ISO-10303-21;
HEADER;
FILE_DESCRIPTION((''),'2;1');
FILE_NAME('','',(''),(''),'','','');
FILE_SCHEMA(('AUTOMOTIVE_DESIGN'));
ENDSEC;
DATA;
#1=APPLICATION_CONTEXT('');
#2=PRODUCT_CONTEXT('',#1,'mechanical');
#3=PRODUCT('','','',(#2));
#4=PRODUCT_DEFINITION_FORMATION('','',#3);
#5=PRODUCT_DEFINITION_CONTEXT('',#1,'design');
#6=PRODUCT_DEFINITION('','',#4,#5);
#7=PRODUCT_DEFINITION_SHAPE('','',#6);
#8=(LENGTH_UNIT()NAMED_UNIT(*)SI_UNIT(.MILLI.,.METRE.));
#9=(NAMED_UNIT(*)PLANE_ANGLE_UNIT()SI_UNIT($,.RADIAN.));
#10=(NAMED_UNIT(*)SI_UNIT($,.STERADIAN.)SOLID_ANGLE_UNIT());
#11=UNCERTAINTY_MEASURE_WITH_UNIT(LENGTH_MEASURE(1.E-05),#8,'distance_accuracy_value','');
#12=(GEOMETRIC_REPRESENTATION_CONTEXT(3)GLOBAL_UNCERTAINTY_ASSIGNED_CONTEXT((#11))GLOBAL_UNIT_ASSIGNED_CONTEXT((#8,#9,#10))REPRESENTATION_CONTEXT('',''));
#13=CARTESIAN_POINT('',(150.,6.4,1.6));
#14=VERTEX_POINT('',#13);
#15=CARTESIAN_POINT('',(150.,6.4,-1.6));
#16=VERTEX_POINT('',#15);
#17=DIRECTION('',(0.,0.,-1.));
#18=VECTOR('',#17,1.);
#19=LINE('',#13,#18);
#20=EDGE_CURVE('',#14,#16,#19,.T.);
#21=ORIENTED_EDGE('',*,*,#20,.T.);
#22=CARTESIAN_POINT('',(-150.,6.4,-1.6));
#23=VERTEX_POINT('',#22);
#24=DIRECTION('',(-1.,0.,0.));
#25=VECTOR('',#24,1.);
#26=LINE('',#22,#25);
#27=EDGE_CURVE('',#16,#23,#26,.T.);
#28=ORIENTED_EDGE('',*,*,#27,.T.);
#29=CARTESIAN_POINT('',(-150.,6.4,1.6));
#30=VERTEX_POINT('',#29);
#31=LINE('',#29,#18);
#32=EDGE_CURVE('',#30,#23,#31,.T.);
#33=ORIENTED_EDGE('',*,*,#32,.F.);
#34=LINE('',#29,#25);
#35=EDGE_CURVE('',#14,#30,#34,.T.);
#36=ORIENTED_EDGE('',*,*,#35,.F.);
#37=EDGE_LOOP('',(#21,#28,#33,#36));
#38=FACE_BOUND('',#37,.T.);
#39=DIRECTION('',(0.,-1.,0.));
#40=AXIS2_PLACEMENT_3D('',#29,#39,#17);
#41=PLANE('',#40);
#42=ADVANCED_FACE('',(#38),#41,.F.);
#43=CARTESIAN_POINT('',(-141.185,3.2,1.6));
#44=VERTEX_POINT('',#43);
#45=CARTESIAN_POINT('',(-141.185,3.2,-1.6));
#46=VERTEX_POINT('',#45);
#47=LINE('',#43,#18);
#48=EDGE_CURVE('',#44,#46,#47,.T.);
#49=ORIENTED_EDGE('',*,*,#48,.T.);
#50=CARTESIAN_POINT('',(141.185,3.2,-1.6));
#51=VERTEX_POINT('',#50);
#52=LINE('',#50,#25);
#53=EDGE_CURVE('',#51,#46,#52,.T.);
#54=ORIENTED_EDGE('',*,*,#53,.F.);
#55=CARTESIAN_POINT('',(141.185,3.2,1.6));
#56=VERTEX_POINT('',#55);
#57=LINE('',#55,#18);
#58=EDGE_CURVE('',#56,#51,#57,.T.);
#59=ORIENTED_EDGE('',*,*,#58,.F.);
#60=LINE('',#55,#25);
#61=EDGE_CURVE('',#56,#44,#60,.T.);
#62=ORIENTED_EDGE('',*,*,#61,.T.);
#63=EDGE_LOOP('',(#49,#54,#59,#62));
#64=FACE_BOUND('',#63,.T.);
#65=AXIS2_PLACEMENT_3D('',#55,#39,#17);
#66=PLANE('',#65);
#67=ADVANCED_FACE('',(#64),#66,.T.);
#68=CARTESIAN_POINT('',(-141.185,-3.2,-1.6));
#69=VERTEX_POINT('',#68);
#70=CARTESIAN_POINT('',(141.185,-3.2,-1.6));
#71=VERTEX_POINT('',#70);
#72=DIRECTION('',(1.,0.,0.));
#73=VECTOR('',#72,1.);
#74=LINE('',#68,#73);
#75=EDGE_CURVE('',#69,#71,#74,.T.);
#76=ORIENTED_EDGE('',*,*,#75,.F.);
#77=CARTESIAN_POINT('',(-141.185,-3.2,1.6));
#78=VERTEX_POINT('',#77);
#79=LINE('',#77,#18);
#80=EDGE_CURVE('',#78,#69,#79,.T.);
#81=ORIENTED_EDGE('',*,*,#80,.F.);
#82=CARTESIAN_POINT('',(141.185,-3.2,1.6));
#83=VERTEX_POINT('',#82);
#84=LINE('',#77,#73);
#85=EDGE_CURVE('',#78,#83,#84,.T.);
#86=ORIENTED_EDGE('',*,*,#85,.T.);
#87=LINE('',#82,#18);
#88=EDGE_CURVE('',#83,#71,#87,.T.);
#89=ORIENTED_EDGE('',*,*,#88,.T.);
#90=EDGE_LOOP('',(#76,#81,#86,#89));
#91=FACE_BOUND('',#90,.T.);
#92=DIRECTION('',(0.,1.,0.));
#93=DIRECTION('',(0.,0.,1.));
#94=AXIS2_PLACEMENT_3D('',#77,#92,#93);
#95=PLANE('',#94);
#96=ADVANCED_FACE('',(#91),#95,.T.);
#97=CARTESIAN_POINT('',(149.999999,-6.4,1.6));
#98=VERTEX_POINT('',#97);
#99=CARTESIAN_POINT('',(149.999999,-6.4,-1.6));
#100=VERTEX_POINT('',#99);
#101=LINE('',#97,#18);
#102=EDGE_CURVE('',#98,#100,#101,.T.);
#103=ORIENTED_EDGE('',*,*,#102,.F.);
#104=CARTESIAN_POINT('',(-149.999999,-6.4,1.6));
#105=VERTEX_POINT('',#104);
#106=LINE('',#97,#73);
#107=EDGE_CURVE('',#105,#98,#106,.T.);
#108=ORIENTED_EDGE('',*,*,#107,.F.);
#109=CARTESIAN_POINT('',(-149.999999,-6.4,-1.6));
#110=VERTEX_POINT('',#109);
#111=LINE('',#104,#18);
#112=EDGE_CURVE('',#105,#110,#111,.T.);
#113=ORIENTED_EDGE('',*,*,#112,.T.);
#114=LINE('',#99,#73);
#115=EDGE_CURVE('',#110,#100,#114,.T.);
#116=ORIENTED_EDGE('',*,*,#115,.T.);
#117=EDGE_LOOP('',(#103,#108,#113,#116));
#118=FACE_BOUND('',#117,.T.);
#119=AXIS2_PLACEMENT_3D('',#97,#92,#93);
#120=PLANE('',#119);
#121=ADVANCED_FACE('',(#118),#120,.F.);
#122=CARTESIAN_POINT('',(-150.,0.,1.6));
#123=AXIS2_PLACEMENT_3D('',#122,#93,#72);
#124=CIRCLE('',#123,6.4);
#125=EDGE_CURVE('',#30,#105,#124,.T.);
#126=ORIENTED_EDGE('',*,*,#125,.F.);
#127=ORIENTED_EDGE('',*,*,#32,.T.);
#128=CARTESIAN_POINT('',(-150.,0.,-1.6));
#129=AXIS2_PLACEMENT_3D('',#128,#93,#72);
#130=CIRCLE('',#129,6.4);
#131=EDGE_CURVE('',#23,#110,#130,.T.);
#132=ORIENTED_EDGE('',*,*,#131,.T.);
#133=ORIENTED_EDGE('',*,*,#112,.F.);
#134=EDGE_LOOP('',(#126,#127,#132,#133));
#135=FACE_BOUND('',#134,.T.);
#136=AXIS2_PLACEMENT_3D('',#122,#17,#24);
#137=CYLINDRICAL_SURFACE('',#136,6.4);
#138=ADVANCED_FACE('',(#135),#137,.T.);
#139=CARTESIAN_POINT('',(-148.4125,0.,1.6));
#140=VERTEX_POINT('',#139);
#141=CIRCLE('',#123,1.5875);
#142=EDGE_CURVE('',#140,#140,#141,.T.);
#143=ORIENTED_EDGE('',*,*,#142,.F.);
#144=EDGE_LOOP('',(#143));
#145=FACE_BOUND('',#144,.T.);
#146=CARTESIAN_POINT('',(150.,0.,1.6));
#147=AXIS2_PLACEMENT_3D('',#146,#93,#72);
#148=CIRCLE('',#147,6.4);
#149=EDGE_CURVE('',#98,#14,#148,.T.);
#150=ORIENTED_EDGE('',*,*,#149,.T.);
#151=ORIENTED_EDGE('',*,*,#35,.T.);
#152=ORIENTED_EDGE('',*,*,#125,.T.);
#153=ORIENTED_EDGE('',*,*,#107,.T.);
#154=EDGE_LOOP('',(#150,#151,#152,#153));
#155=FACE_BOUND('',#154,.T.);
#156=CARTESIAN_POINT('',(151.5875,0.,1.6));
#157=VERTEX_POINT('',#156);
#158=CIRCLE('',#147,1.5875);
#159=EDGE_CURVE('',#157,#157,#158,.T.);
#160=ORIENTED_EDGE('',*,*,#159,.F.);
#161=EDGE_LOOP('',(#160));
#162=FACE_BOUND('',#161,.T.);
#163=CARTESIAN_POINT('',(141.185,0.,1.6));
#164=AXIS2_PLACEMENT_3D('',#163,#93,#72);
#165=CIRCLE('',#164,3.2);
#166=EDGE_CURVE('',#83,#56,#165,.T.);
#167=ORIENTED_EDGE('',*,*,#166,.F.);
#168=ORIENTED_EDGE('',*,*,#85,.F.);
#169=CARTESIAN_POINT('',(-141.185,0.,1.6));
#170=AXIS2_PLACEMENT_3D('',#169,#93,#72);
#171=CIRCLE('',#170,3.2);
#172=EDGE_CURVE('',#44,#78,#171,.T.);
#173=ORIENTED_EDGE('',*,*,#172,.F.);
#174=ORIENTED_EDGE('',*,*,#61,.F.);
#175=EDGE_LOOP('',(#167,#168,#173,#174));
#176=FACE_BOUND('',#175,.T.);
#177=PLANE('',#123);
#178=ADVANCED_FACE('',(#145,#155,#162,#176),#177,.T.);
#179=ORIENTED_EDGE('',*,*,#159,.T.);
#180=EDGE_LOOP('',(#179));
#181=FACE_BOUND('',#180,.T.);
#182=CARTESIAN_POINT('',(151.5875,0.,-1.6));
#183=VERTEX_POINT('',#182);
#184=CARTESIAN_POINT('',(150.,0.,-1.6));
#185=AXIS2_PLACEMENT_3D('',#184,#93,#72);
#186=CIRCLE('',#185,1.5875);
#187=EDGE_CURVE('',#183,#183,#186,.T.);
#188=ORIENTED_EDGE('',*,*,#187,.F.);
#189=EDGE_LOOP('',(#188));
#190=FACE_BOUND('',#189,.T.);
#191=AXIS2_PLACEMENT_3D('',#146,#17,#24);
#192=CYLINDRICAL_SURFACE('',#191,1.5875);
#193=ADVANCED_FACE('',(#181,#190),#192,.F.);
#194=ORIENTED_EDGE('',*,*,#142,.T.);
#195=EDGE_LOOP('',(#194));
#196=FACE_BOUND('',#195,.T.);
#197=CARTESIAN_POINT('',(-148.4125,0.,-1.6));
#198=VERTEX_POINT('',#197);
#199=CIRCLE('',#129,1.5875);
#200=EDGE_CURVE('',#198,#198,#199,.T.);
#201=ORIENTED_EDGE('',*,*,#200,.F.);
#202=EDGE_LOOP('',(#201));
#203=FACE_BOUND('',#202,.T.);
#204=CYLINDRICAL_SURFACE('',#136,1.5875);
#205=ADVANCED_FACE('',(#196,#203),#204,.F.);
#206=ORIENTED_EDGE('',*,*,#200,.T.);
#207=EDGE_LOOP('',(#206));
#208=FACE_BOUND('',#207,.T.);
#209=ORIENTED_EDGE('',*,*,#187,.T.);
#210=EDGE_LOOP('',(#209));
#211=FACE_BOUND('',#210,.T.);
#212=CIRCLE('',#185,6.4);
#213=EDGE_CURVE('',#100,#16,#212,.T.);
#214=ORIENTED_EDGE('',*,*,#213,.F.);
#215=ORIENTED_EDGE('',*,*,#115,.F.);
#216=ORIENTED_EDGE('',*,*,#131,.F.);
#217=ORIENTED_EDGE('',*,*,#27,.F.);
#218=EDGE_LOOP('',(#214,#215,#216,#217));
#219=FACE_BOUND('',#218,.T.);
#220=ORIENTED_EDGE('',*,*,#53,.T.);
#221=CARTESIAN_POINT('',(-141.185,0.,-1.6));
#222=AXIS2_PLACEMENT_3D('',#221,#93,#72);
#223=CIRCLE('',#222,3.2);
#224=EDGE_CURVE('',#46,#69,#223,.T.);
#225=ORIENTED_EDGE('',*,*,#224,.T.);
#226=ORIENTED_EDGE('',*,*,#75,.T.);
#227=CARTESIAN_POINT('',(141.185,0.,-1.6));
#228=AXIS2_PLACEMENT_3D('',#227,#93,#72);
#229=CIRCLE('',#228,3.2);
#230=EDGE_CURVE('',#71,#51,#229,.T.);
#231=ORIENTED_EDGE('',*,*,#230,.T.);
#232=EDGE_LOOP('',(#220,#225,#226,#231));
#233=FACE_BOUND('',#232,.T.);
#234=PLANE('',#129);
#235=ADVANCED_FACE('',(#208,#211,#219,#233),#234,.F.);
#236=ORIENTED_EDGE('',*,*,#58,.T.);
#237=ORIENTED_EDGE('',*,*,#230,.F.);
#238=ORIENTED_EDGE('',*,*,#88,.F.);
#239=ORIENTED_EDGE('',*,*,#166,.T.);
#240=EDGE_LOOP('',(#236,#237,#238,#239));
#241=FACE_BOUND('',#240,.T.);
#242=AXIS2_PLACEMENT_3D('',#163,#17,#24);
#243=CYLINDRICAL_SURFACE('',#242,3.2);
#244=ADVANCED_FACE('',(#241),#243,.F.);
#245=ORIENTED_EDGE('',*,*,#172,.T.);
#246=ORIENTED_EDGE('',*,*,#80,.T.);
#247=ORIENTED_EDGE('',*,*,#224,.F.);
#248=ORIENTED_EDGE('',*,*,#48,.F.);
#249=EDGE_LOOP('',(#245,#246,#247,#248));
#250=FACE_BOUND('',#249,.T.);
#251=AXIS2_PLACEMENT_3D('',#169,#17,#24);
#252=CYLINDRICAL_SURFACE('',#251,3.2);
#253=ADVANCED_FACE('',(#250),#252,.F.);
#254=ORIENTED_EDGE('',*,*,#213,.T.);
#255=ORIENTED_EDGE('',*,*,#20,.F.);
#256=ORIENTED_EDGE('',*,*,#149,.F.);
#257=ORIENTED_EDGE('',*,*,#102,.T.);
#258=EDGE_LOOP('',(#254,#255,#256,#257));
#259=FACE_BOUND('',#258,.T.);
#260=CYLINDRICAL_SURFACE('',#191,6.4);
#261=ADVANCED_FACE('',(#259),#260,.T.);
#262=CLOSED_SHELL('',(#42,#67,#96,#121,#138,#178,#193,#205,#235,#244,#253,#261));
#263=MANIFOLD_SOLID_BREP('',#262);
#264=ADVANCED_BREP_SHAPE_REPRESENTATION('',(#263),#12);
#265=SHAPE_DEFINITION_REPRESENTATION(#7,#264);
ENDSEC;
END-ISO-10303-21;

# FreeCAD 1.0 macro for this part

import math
import FreeCAD as App
import Part
import Sketcher

V = App.Vector

doc = App.newDocument("Part")
params = doc.addObject("Spreadsheet::Sheet", "Params")
for row, (alias, value) in enumerate([
    ("sketch1_radius", "6.4 mm"),
    ("sketch1_radius2", "3.2 mm"),
    ("sketch1_width", "299.999999 mm"),
    ("sketch1_width2", "282.37 mm"),
    ("pad1_length", "3.2 mm"),
], start=1):
    params.set(f"A{row}", alias)
    params.set(f"B{row}", "=" + value)
    params.setAlias(f"B{row}", alias)

body = doc.addObject("PartDesign::Body", "Body")

sketch1 = body.newObject("Sketcher::SketchObject", "Sketch")
sketch1.AttachmentSupport = (doc.getObject("XY_Plane"), [""])
sketch1.MapMode = "FlatFace"
sketch1.addGeometry(Part.LineSegment(V(150, 6.4, 0), V(-150, 6.4, 0)), False)
sketch1.addGeometry(Part.ArcOfCircle(Part.Circle(V(-150, 0, 0), V(0, 0, 1), 6.4), math.radians(90), math.radians(270)), False)
sketch1.addGeometry(Part.LineSegment(V(-150, -6.4, 0), V(150, -6.4, 0)), False)
sketch1.addGeometry(Part.ArcOfCircle(Part.Circle(V(150, 0, 0), V(0, 0, 1), 6.4), math.radians(-90), math.radians(90)), False)
sketch1.addGeometry(Part.Circle(V(150, 0, 0), V(0, 0, 1), 1.6), False)
sketch1.addGeometry(Part.ArcOfCircle(Part.Circle(V(141.2, 0, 0), V(0, 0, 1), 3.2), math.radians(-90), math.radians(90)), False)
sketch1.addGeometry(Part.LineSegment(V(141.2, -3.2, 0), V(-141.2, -3.2, 0)), False)
sketch1.addGeometry(Part.ArcOfCircle(Part.Circle(V(-141.2, 0, 0), V(0, 0, 1), 3.2), math.radians(90), math.radians(270)), False)
sketch1.addGeometry(Part.LineSegment(V(-141.2, 3.2, 0), V(141.2, 3.2, 0)), False)
sketch1.addGeometry(Part.Circle(V(-150, 0, 0), V(0, 0, 1), 1.6), False)
sketch1.addConstraint(Sketcher.Constraint("Tangent", 0, 2, 1, 1))
sketch1.addConstraint(Sketcher.Constraint("Tangent", 1, 2, 2, 1))
sketch1.addConstraint(Sketcher.Constraint("Tangent", 2, 2, 3, 1))
sketch1.addConstraint(Sketcher.Constraint("Tangent", 3, 2, 0, 1))
sketch1.addConstraint(Sketcher.Constraint("Tangent", 5, 1, 6, 1))
sketch1.addConstraint(Sketcher.Constraint("Tangent", 6, 2, 7, 2))
sketch1.addConstraint(Sketcher.Constraint("Tangent", 7, 1, 8, 1))
sketch1.addConstraint(Sketcher.Constraint("Tangent", 8, 2, 5, 2))
sketch1.addConstraint(Sketcher.Constraint("Horizontal", 0))
sketch1.addConstraint(Sketcher.Constraint("Horizontal", 2))
sketch1.addConstraint(Sketcher.Constraint("Horizontal", 6))
sketch1.addConstraint(Sketcher.Constraint("Horizontal", 8))
sketch1.addConstraint(Sketcher.Constraint("Coincident", 4, 3, 3, 3))
sketch1.addConstraint(Sketcher.Constraint("Coincident", 9, 3, 1, 3))
sketch1.addConstraint(Sketcher.Constraint("Equal", 4, 9))
sketch1.addConstraint(Sketcher.Constraint("Symmetric", 1, 3, 3, 3, -1, 1))
sketch1.addConstraint(Sketcher.Constraint("Symmetric", 5, 3, 7, 3, -1, 1))
sketch1.addConstraint(Sketcher.Constraint("Radius", 1, 6.4))
sketch1.addConstraint(Sketcher.Constraint("Radius", 5, 3.2))
sketch1.addConstraint(Sketcher.Constraint("DistanceX", 0, 2, 0, 1, 299.999999))
sketch1.addConstraint(Sketcher.Constraint("Diameter", 4, 3.175))
sketch1.addConstraint(Sketcher.Constraint("DistanceX", 6, 2, 6, 1, 282.37))
sketch1.setExpression("Constraints[17]", "Params.sketch1_radius")
sketch1.setExpression("Constraints[18]", "Params.sketch1_radius2")
sketch1.setExpression("Constraints[19]", "Params.sketch1_width")
sketch1.setExpression("Constraints[21]", "Params.sketch1_width2")
pad1 = body.newObject("PartDesign::Pad", "Pad")
pad1.Profile = sketch1
pad1.setExpression("Length", "Params.pad1_length")
pad1.Midplane = True

doc.recompute()
